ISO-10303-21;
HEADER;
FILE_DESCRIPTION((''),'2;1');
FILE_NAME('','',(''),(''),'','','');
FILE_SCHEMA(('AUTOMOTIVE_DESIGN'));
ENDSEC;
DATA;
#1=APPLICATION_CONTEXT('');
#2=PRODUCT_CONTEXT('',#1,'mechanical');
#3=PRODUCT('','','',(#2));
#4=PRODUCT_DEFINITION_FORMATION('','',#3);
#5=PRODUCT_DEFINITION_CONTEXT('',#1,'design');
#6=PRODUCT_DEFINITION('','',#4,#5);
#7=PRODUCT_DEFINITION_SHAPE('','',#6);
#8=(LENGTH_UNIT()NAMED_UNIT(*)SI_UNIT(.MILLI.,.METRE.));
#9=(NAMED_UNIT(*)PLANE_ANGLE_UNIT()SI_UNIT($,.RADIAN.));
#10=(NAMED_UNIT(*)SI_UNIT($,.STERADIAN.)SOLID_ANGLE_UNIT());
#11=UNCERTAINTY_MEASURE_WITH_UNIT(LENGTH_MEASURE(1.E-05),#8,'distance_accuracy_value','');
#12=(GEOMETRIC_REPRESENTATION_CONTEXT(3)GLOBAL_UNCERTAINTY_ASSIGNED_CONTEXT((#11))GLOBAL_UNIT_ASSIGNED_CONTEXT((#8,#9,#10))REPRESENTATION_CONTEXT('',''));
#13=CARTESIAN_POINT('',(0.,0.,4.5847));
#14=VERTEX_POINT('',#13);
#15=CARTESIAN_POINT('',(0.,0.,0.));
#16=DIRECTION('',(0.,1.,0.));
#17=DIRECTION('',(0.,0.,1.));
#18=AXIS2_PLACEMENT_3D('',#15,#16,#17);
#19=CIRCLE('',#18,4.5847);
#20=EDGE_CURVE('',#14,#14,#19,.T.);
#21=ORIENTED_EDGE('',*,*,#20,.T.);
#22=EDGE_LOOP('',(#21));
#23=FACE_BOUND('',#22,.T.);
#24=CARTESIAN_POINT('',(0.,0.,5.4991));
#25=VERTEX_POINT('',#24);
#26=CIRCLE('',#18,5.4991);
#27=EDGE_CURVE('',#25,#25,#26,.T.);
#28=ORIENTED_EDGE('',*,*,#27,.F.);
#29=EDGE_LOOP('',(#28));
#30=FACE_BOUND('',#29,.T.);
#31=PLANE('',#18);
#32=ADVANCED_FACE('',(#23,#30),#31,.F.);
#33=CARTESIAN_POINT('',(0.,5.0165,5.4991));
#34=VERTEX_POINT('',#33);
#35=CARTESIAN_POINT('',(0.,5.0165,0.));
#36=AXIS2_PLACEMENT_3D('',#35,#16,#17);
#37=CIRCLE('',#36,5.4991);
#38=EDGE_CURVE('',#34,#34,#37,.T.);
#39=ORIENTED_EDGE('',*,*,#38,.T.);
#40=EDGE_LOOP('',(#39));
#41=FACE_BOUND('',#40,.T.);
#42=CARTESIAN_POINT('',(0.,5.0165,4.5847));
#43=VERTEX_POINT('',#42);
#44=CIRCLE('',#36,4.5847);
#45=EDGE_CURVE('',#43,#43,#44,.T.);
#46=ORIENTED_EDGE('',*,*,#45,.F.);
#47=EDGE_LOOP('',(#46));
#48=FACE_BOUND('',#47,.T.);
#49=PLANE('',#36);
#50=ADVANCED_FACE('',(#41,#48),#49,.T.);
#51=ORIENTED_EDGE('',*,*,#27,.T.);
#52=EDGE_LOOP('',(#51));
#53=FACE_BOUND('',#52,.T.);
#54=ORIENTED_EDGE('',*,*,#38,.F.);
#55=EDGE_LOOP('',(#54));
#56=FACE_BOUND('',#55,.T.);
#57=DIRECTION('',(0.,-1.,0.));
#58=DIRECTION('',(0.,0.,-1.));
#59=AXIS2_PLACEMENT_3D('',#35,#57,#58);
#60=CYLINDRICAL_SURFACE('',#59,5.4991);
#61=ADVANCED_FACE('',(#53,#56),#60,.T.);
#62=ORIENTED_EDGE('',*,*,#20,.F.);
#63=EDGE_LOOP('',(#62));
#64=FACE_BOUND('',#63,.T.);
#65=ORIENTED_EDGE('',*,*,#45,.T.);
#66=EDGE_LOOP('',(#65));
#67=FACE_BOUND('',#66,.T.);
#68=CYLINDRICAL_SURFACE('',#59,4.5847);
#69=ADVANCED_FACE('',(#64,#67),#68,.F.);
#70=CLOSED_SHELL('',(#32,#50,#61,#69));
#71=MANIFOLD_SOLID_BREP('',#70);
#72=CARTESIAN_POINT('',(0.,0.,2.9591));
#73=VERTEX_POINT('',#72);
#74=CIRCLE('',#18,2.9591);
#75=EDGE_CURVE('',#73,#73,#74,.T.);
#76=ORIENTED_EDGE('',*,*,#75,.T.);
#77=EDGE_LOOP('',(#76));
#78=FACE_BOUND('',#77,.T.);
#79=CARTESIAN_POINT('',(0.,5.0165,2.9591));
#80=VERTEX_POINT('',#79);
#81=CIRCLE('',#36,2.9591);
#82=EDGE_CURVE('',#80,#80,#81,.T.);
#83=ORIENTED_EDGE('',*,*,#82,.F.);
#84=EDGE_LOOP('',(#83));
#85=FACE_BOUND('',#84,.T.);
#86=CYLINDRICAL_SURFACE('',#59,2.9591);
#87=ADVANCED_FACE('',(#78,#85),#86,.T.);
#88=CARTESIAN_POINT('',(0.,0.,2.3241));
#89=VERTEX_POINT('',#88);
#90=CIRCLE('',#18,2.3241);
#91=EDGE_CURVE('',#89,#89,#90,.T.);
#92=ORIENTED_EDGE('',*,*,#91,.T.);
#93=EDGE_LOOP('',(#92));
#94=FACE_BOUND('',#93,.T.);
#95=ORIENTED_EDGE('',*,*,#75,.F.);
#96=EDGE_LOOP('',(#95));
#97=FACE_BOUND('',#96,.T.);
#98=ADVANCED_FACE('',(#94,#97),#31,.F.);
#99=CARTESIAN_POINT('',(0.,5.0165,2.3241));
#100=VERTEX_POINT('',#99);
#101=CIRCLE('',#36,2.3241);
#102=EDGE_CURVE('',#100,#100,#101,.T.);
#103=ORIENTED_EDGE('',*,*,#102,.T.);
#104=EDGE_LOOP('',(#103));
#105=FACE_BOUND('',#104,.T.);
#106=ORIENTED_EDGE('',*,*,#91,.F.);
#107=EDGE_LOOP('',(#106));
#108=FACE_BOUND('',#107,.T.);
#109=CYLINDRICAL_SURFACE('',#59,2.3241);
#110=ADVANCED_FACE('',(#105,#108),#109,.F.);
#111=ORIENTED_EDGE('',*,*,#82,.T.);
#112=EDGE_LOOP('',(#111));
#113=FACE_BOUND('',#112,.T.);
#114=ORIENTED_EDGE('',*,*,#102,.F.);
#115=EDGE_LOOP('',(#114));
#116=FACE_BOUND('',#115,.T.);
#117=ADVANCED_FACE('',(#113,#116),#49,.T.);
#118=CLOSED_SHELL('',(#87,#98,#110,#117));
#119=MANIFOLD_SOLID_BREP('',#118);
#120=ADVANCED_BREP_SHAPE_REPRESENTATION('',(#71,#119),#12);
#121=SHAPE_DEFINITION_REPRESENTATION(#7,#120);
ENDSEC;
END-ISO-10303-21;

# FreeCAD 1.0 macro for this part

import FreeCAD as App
import Part
import Sketcher
Q = App.Units.Quantity

doc = App.newDocument("Part")
params = doc.addObject("Spreadsheet::Sheet", "Params")
for row, (alias, value) in enumerate([
    ("sketch1_diameter", "0.433 in"),
    ("sketch1_diameter2", "0.361 in"),
    ("pad1_length", "0.1975 in"),
    ("sketch2_diameter", "0.233 in"),
    ("sketch2_diameter2", "0.183 in"),
    ("pad2_length", "0.1975 in"),
], start=1):
    params.set(f"A{row}", alias)
    params.set(f"B{row}", "=" + value)
    params.setAlias(f"B{row}", alias)

body = doc.addObject("PartDesign::Body", "Body")

sketch1 = doc.addObject("Sketcher::SketchObject", "Sketch")
body.addObject(sketch1)
sketch1.AttachmentSupport = (doc.XZ_Plane, [""])
sketch1.MapMode = "FlatFace"
sketch1.addGeometry(Part.Circle(App.Vector(0, 0, 0), App.Vector(0, 0, 1), 5.5), False)
sketch1.addGeometry(Part.Circle(App.Vector(0, 0, 0), App.Vector(0, 0, 1), 4.6), False)
sketch1.addConstraint(Sketcher.Constraint("Coincident", 0, 3, -1, 1))
sketch1.addConstraint(Sketcher.Constraint("Coincident", 1, 3, -1, 1))
sketch1.addConstraint(Sketcher.Constraint("Diameter", 0, Q("0.433 in")))
sketch1.addConstraint(Sketcher.Constraint("Diameter", 1, Q("0.361 in")))
sketch1.setExpression("Constraints[2]", "Params.sketch1_diameter")
sketch1.setExpression("Constraints[3]", "Params.sketch1_diameter2")
pad1 = doc.addObject("PartDesign::Pad", "Pad")
body.addObject(pad1)
pad1.Profile = sketch1
pad1.setExpression("Length", "Params.pad1_length")
pad1.Reversed = True
body2 = doc.addObject("PartDesign::Body", "Body001")

sketch2 = doc.addObject("Sketcher::SketchObject", "Sketch001")
body2.addObject(sketch2)
sketch2.AttachmentSupport = (doc.getObject("XZ_Plane001"), [""])
sketch2.MapMode = "FlatFace"
sketch2.addGeometry(Part.Circle(App.Vector(0, 0, 0), App.Vector(0, 0, 1), 3), False)
sketch2.addGeometry(Part.Circle(App.Vector(0, 0, 0), App.Vector(0, 0, 1), 2.3), False)
sketch2.addConstraint(Sketcher.Constraint("Coincident", 0, 3, -1, 1))
sketch2.addConstraint(Sketcher.Constraint("Coincident", 1, 3, -1, 1))
sketch2.addConstraint(Sketcher.Constraint("Diameter", 0, Q("0.233 in")))
sketch2.addConstraint(Sketcher.Constraint("Diameter", 1, Q("0.183 in")))
sketch2.setExpression("Constraints[2]", "Params.sketch2_diameter")
sketch2.setExpression("Constraints[3]", "Params.sketch2_diameter2")
pad2 = doc.addObject("PartDesign::Pad", "Pad001")
body2.addObject(pad2)
pad2.Profile = sketch2
pad2.setExpression("Length", "Params.pad2_length")
pad2.Reversed = True

doc.recompute()
